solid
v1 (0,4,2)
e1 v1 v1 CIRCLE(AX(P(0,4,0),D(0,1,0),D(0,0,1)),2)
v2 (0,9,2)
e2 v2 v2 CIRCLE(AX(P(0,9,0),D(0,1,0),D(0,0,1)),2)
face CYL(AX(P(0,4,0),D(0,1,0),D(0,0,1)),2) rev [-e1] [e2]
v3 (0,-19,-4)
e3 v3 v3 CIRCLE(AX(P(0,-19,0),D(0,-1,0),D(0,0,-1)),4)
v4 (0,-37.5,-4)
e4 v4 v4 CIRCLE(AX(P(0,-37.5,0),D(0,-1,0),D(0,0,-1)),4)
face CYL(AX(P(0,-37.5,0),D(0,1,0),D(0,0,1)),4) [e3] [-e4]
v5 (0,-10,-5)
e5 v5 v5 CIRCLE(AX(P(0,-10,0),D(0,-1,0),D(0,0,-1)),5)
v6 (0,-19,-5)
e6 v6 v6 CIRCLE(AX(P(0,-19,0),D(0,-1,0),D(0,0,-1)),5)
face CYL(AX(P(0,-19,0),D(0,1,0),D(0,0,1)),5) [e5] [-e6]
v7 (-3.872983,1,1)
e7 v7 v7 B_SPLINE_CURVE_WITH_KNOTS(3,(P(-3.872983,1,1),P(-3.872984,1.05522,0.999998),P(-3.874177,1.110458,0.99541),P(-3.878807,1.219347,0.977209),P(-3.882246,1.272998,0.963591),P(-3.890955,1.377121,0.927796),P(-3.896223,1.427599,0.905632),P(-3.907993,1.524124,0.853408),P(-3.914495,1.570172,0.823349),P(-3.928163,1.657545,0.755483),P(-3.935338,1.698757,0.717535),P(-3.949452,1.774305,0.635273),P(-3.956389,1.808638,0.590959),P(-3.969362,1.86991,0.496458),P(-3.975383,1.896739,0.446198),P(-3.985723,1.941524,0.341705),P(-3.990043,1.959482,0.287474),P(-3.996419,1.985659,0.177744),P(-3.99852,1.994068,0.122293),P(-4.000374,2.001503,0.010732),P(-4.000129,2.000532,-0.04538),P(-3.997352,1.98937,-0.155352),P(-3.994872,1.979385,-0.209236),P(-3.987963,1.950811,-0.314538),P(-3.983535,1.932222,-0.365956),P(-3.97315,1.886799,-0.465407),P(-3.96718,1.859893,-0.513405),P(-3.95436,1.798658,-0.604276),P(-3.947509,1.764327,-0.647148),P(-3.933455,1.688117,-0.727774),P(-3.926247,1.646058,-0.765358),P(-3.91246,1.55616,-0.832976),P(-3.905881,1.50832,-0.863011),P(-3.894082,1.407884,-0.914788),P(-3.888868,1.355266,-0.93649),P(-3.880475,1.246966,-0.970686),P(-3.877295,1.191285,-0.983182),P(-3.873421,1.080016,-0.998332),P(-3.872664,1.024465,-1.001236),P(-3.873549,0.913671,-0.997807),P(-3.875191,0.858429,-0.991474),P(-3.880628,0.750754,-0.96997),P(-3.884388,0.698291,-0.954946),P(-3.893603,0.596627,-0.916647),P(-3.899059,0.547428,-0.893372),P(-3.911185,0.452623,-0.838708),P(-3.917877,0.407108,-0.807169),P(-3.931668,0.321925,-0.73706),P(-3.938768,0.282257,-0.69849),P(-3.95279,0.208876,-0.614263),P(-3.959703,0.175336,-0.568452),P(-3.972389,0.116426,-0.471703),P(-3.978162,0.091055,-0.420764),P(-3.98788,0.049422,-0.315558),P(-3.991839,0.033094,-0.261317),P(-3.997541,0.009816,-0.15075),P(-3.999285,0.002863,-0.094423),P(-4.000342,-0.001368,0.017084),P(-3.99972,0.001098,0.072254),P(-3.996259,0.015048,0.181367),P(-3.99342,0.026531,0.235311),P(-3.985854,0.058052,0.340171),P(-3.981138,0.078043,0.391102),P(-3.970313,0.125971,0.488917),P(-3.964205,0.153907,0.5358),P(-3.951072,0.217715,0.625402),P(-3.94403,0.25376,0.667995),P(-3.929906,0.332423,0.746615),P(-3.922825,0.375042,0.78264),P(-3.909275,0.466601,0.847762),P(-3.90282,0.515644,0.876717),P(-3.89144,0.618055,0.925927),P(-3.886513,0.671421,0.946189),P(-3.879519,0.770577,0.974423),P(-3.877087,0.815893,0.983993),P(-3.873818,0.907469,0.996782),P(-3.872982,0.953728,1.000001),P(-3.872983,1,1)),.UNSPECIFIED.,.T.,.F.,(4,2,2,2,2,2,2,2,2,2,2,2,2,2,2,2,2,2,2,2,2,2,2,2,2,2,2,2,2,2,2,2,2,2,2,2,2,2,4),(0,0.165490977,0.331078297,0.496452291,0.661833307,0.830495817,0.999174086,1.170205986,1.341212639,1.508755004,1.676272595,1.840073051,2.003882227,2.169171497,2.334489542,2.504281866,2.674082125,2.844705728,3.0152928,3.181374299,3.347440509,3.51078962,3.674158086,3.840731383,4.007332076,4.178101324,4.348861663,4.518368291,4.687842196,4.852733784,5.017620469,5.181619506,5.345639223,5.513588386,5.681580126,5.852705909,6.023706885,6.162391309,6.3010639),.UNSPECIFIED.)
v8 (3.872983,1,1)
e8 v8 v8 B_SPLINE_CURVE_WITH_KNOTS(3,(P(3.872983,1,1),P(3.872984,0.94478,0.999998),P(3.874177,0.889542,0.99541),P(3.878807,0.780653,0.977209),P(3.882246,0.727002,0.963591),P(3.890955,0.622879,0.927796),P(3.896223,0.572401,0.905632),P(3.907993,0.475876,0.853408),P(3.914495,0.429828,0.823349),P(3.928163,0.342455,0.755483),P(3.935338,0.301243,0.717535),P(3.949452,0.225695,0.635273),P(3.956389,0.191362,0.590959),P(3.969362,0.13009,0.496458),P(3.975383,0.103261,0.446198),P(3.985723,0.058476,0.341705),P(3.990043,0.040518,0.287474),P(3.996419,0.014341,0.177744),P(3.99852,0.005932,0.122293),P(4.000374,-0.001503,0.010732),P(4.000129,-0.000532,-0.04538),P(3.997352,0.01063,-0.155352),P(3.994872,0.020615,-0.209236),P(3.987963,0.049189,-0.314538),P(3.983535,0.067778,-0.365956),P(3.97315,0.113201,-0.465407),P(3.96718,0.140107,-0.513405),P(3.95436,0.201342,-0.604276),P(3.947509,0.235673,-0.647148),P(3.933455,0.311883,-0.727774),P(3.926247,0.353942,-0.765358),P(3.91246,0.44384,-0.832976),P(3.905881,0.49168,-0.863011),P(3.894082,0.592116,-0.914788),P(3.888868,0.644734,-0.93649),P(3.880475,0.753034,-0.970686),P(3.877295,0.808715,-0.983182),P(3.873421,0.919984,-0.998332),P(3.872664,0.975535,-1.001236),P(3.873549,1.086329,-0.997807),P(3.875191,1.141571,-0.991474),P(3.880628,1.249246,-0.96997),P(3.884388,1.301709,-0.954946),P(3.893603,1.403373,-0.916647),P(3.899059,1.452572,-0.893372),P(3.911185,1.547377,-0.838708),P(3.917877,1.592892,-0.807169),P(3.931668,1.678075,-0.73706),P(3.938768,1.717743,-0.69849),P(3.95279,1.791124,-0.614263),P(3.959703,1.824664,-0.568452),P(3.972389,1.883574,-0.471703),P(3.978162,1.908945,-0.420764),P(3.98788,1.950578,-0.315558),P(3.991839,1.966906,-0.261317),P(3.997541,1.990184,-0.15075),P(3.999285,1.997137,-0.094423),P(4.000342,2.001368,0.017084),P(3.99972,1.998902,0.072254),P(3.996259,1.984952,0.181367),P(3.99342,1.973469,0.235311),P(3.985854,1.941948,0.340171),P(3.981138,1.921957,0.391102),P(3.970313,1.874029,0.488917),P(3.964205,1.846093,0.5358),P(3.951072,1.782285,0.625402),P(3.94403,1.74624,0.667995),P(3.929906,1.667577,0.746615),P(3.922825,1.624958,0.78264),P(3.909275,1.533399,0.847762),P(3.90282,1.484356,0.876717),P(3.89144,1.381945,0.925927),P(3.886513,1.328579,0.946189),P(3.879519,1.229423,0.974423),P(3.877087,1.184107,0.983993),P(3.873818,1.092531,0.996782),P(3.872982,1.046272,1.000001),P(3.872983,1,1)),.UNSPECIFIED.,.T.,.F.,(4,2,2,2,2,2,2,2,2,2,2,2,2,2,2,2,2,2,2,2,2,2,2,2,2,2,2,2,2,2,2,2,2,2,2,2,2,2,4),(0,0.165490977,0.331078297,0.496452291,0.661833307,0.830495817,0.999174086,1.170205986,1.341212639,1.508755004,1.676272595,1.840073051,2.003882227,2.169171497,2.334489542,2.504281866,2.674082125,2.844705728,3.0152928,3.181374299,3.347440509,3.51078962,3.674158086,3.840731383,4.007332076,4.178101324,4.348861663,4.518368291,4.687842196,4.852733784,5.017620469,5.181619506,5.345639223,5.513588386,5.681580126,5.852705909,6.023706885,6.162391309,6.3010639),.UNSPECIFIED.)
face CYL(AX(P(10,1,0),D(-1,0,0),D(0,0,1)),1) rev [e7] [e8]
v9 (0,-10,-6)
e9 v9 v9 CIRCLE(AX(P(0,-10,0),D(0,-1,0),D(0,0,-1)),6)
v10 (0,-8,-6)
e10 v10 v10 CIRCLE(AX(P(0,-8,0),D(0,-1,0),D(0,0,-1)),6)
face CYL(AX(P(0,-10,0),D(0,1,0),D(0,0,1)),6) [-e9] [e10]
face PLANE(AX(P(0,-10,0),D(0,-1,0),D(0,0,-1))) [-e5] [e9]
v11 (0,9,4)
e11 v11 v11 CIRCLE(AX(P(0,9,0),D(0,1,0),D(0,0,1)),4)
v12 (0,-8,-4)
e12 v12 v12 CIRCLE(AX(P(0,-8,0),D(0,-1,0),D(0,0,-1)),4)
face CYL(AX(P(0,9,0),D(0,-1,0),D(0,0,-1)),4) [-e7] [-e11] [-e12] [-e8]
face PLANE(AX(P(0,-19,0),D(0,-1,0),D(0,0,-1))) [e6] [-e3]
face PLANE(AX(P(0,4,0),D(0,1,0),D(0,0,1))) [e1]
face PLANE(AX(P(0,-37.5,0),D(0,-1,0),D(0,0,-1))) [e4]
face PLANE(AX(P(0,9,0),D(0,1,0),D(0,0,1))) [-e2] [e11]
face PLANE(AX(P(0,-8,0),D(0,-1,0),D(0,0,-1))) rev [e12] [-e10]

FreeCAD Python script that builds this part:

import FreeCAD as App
import Part
import Sketcher
Q = App.Units.Quantity

doc = App.newDocument("Part")
body = doc.addObject("PartDesign::Body", "Body")

# Sketch on XZ plane
sketch1 = doc.addObject("Sketcher::SketchObject", "Sketch")
body.addObject(sketch1)
sketch1.AttachmentSupport = (doc.XZ_Plane, [""])
sketch1.MapMode = "FlatFace"
sketch1.addGeometry(Part.Circle(App.Vector(0, 0, 0), App.Vector(0, 0, 1), 4), False)
sketch1.addConstraint(Sketcher.Constraint("Coincident", 0, 3, -1, 1))
sketch1.addConstraint(Sketcher.Constraint("Diameter", 0, Q("8 mm")))
pad1 = doc.addObject("PartDesign::Pad", "Pad")
body.addObject(pad1)
pad1.Profile = sketch1
pad1.Length = 9
pad1.Reversed = True

# Sketch on XZ plane
sketch2 = doc.addObject("Sketcher::SketchObject", "Sketch001")
body.addObject(sketch2)
sketch2.AttachmentSupport = (doc.XZ_Plane, [""])
sketch2.MapMode = "FlatFace"
sketch2.AttachmentOffset = App.Placement(App.Vector(0, 0, -9), App.Rotation())
sketch2.addGeometry(Part.Circle(App.Vector(0, 0, 0), App.Vector(0, 0, 1), 2), False)
sketch2.addConstraint(Sketcher.Constraint("Coincident", 0, 3, -1, 1))
sketch2.addConstraint(Sketcher.Constraint("Diameter", 0, Q("4 mm")))
pocket1 = doc.addObject("PartDesign::Pocket", "Pocket")
body.addObject(pocket1)
pocket1.Profile = sketch2
pocket1.Length = 5
pocket1.Reversed = True

# Sketch on XZ plane
sketch3 = doc.addObject("Sketcher::SketchObject", "Sketch002")
body.addObject(sketch3)
sketch3.AttachmentSupport = (doc.XZ_Plane, [""])
sketch3.MapMode = "FlatFace"
sketch3.AttachmentOffset = App.Placement(App.Vector(0, 0, 8), App.Rotation())
sketch3.addGeometry(Part.Circle(App.Vector(0, 0, 0), App.Vector(0, 0, 1), 4), False)
sketch3.addConstraint(Sketcher.Constraint("Coincident", 0, 3, -1, 1))
sketch3.addConstraint(Sketcher.Constraint("Diameter", 0, Q("8 mm")))
pad2 = doc.addObject("PartDesign::Pad", "Pad001")
body.addObject(pad2)
pad2.Profile = sketch3
pad2.Length = 8
pad2.Reversed = True

# Sketch on YZ plane
sketch4 = doc.addObject("Sketcher::SketchObject", "Sketch003")
body.addObject(sketch4)
sketch4.AttachmentSupport = (doc.YZ_Plane, [""])
sketch4.MapMode = "FlatFace"
sketch4.addGeometry(Part.Circle(App.Vector(1, 0, 0), App.Vector(0, 0, 1), 1), False)
sketch4.addConstraint(Sketcher.Constraint("PointOnObject", 0, 3, -1))
sketch4.addConstraint(Sketcher.Constraint("Diameter", 0, Q("2 mm")))
sketch4.addConstraint(Sketcher.Constraint("DistanceX", -1, 1, 0, 3, Q("1 mm")))
pocket2 = doc.addObject("PartDesign::Pocket", "Pocket001")
body.addObject(pocket2)
pocket2.Profile = sketch4
pocket2.Type = "ThroughAll"
pocket2.Midplane = True

# Sketch on XZ plane
sketch5 = doc.addObject("Sketcher::SketchObject", "Sketch004")
body.addObject(sketch5)
sketch5.AttachmentSupport = (doc.XZ_Plane, [""])
sketch5.MapMode = "FlatFace"
sketch5.AttachmentOffset = App.Placement(App.Vector(0, 0, 8), App.Rotation())
sketch5.addGeometry(Part.Circle(App.Vector(0, 0, 0), App.Vector(0, 0, 1), 6), False)
sketch5.addConstraint(Sketcher.Constraint("Coincident", 0, 3, -1, 1))
sketch5.addConstraint(Sketcher.Constraint("Diameter", 0, Q("12 mm")))
pad3 = doc.addObject("PartDesign::Pad", "Pad002")
body.addObject(pad3)
pad3.Profile = sketch5
pad3.Length = 2

# Sketch on XZ plane
sketch6 = doc.addObject("Sketcher::SketchObject", "Sketch005")
body.addObject(sketch6)
sketch6.AttachmentSupport = (doc.XZ_Plane, [""])
sketch6.MapMode = "FlatFace"
sketch6.AttachmentOffset = App.Placement(App.Vector(0, 0, 10), App.Rotation())
sketch6.addGeometry(Part.Circle(App.Vector(0, 0, 0), App.Vector(0, 0, 1), 5), False)
sketch6.addConstraint(Sketcher.Constraint("Coincident", 0, 3, -1, 1))
sketch6.addConstraint(Sketcher.Constraint("Diameter", 0, Q("10 mm")))
pad4 = doc.addObject("PartDesign::Pad", "Pad003")
body.addObject(pad4)
pad4.Profile = sketch6
pad4.Length = 9

# Sketch on XZ plane
sketch7 = doc.addObject("Sketcher::SketchObject", "Sketch006")
body.addObject(sketch7)
sketch7.AttachmentSupport = (doc.XZ_Plane, [""])
sketch7.MapMode = "FlatFace"
sketch7.AttachmentOffset = App.Placement(App.Vector(0, 0, 37.5), App.Rotation())
sketch7.addGeometry(Part.Circle(App.Vector(0, 0, 0), App.Vector(0, 0, 1), 4), False)
sketch7.addConstraint(Sketcher.Constraint("Coincident", 0, 3, -1, 1))
sketch7.addConstraint(Sketcher.Constraint("Diameter", 0, Q("8 mm")))
pad5 = doc.addObject("PartDesign::Pad", "Pad004")
body.addObject(pad5)
pad5.Profile = sketch7
pad5.Length = 18.5
pad5.Reversed = True

doc.recompute()
